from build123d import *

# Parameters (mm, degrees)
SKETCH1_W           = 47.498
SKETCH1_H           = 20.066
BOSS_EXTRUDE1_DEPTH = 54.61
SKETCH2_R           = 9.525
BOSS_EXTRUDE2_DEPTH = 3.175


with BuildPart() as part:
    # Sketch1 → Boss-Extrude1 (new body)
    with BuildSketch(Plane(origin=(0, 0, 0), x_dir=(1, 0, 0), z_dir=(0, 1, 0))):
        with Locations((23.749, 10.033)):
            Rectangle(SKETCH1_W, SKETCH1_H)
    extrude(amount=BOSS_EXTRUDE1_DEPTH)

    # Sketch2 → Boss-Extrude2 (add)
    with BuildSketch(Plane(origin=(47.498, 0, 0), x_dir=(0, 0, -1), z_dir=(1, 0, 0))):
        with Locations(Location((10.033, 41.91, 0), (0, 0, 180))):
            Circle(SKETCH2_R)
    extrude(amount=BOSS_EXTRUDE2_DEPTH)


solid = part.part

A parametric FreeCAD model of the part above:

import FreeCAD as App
import Part
import Sketcher
from FreeCAD import Vector
Q = App.Units.Quantity


def add_polygon(sketch, points):
    """Adds a closed chain of lines whose ends are joined by coincident constraints."""
    first, n = sketch.GeometryCount, len(points)
    for a, b in zip(points, points[1:] + points[:1]):
        sketch.addGeometry(Part.LineSegment(App.Vector(*a, 0), App.Vector(*b, 0)), False)
    for i in range(n):
        sketch.addConstraint(Sketcher.Constraint("Coincident", first + i, 2, first + (i + 1) % n, 1))

doc = App.newDocument("Part")
body = doc.addObject("PartDesign::Body", "Body")

# Sketch on XZ plane
sketch1 = body.newObject("Sketcher::SketchObject", "Sketch")
sketch1.AttachmentSupport = (doc.getObject("XZ_Plane"), [""])
sketch1.MapMode = "FlatFace"
add_polygon(sketch1, [(0, -20.066), (0, 0), (47.498, 0), (47.498, -20.066)])  # lines 0-3
sketch1.addConstraint(Sketcher.Constraint("Vertical", 0))
sketch1.addConstraint(Sketcher.Constraint("Horizontal", 1))
sketch1.addConstraint(Sketcher.Constraint("Vertical", 2))
sketch1.addConstraint(Sketcher.Constraint("Horizontal", 3))
sketch1.addConstraint(Sketcher.Constraint("Coincident", 0, 2, -1, 1))
sketch1.addConstraint(Sketcher.Constraint("DistanceX", 1, 1, 1, 2, Q("1.87 in")))
sketch1.addConstraint(Sketcher.Constraint("DistanceY", 0, 1, 0, 2, Q("0.79 in")))
pad1 = body.newObject("PartDesign::Pad", "Pad")
pad1.Profile = sketch1
pad1.Length = Q("2.15 in")
pad1.Reversed = True

# Sketch on YZ plane
sketch2 = body.newObject("Sketcher::SketchObject", "Sketch001")
sketch2.AttachmentSupport = (doc.getObject("YZ_Plane"), [""])
sketch2.MapMode = "FlatFace"
sketch2.AttachmentOffset = App.Placement(Vector(0, 0, 1.87 * 25.4), App.Rotation())
sketch2.addGeometry(Part.Circle(Vector(41.91, -10.033, 0), Vector(0, 0, 1), 9.525), False)
sketch2.addConstraint(Sketcher.Constraint("Diameter", 0, Q("0.75 in")))
sketch2.addConstraint(Sketcher.Constraint("DistanceX", -1, 1, 0, 3, Q("1.65 in")))
sketch2.addConstraint(Sketcher.Constraint("DistanceY", 0, 3, -1, 1, Q("0.395 in")))
pad2 = body.newObject("PartDesign::Pad", "Pad001")
pad2.Profile = sketch2
pad2.Length = Q("0.125 in")

doc.recompute()
